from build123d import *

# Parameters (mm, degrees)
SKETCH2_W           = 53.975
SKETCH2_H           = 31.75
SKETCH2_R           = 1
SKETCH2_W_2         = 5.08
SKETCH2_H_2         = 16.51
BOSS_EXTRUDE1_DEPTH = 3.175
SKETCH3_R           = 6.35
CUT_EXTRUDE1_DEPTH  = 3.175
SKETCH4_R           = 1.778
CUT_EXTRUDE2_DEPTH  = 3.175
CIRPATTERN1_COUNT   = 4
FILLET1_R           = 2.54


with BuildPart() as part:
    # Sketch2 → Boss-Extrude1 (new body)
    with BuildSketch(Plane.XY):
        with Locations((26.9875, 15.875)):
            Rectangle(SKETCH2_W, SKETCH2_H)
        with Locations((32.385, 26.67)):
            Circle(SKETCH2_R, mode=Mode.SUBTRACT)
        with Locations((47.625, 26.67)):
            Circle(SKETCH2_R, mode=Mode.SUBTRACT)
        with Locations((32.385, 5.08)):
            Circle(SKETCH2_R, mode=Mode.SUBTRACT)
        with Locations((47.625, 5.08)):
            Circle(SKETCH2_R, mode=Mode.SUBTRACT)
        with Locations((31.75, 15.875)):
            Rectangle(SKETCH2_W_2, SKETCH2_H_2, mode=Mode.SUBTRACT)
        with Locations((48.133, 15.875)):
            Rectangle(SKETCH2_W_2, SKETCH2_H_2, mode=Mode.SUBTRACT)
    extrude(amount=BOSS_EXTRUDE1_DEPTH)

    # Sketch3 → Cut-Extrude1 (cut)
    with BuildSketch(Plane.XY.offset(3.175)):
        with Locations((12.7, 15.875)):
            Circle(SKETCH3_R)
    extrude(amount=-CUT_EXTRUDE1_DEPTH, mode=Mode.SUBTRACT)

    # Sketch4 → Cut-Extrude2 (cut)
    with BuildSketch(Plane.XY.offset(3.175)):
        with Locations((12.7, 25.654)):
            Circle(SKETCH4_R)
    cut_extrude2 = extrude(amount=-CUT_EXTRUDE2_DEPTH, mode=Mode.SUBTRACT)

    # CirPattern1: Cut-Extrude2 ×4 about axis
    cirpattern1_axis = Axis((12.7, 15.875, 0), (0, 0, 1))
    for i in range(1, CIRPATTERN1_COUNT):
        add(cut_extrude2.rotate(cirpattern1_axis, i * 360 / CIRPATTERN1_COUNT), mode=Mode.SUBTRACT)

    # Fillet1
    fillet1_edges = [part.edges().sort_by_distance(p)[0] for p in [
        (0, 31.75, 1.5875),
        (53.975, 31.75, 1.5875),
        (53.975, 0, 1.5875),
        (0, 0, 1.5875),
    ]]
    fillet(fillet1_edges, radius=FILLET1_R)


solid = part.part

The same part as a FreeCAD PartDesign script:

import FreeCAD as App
import Part
import Sketcher
Q = App.Units.Quantity


def edges_at(feature, points):
    """Names of the edges that pass closest to the given points."""
    edges = feature.Shape.Edges
    near = lambda p: min(range(len(edges)), key=lambda i: edges[i].distToShape(Part.Vertex(*p))[0])
    return sorted({f"Edge{near(p) + 1}" for p in points})

doc = App.newDocument("Part")
params = doc.addObject("Spreadsheet::Sheet", "Params")
for row, (alias, value) in enumerate([
    ("sketch1_width", "0.2 in"),
    ("sketch1_height", "1.25 in"),
    ("sketch1_height2", "0.65 in"),
    ("sketch1_width2", "2.125 in"),
    ("pad1_length", "0.125 in"),
    ("sketch2_diameter", "0.5 in"),
    ("pocket1_length", "0.125 in"),
    ("sketch3_diameter", "0.14 in"),
    ("pocket2_length", "0.125 in"),
    ("fillet_radius", "0.1 in"),
], start=1):
    params.set(f"A{row}", alias)
    params.set(f"B{row}", "=" + value)
    params.setAlias(f"B{row}", alias)

body = doc.addObject("PartDesign::Body", "Body")

sketch1 = body.newObject("Sketcher::SketchObject", "Sketch")
sketch1.AttachmentSupport = (doc.getObject("XY_Plane"), [""])
sketch1.MapMode = "FlatFace"
sketch1.addGeometry(Part.LineSegment(App.Vector(0, 31.8, 0), App.Vector(0, 0, 0)), False)
sketch1.addGeometry(Part.LineSegment(App.Vector(0, 0, 0), App.Vector(54, 0, 0)), False)
sketch1.addGeometry(Part.LineSegment(App.Vector(54, 0, 0), App.Vector(54, 31.8, 0)), False)
sketch1.addGeometry(Part.LineSegment(App.Vector(54, 31.8, 0), App.Vector(0, 31.8, 0)), False)
sketch1.addGeometry(Part.Circle(App.Vector(32.4, 5.1, 0), App.Vector(0, 0, 1), 1), False)
sketch1.addGeometry(Part.LineSegment(App.Vector(34.3, 7.6, 0), App.Vector(29.2, 7.6, 0)), False)
sketch1.addGeometry(Part.LineSegment(App.Vector(29.2, 7.6, 0), App.Vector(29.2, 24.1, 0)), False)
sketch1.addGeometry(Part.LineSegment(App.Vector(29.2, 24.1, 0), App.Vector(34.3, 24.1, 0)), False)
sketch1.addGeometry(Part.LineSegment(App.Vector(34.3, 24.1, 0), App.Vector(34.3, 7.6, 0)), False)
sketch1.addGeometry(Part.Circle(App.Vector(47.6, 5.1, 0), App.Vector(0, 0, 1), 1), False)
sketch1.addGeometry(Part.LineSegment(App.Vector(50.7, 7.6, 0), App.Vector(45.6, 7.6, 0)), False)
sketch1.addGeometry(Part.LineSegment(App.Vector(45.6, 7.6, 0), App.Vector(45.6, 24.1, 0)), False)
sketch1.addGeometry(Part.LineSegment(App.Vector(45.6, 24.1, 0), App.Vector(50.7, 24.1, 0)), False)
sketch1.addGeometry(Part.LineSegment(App.Vector(50.7, 24.1, 0), App.Vector(50.7, 7.6, 0)), False)
sketch1.addGeometry(Part.Circle(App.Vector(32.4, 26.7, 0), App.Vector(0, 0, 1), 1), False)
sketch1.addGeometry(Part.Circle(App.Vector(47.6, 26.7, 0), App.Vector(0, 0, 1), 1), False)
sketch1.addConstraint(Sketcher.Constraint("Coincident", 0, 2, 1, 1))
sketch1.addConstraint(Sketcher.Constraint("Coincident", 1, 2, 2, 1))
sketch1.addConstraint(Sketcher.Constraint("Coincident", 2, 2, 3, 1))
sketch1.addConstraint(Sketcher.Constraint("Coincident", 3, 2, 0, 1))
sketch1.addConstraint(Sketcher.Constraint("Coincident", 5, 2, 6, 1))
sketch1.addConstraint(Sketcher.Constraint("Coincident", 6, 2, 7, 1))
sketch1.addConstraint(Sketcher.Constraint("Coincident", 7, 2, 8, 1))
sketch1.addConstraint(Sketcher.Constraint("Coincident", 8, 2, 5, 1))
sketch1.addConstraint(Sketcher.Constraint("Coincident", 10, 2, 11, 1))
sketch1.addConstraint(Sketcher.Constraint("Coincident", 11, 2, 12, 1))
sketch1.addConstraint(Sketcher.Constraint("Coincident", 12, 2, 13, 1))
sketch1.addConstraint(Sketcher.Constraint("Coincident", 13, 2, 10, 1))
sketch1.addConstraint(Sketcher.Constraint("Vertical", 0))
sketch1.addConstraint(Sketcher.Constraint("Horizontal", 1))
sketch1.addConstraint(Sketcher.Constraint("Vertical", 2))
sketch1.addConstraint(Sketcher.Constraint("Horizontal", 3))
sketch1.addConstraint(Sketcher.Constraint("Horizontal", 5))
sketch1.addConstraint(Sketcher.Constraint("Vertical", 6))
sketch1.addConstraint(Sketcher.Constraint("Horizontal", 7))
sketch1.addConstraint(Sketcher.Constraint("Vertical", 8))
sketch1.addConstraint(Sketcher.Constraint("Horizontal", 10))
sketch1.addConstraint(Sketcher.Constraint("Vertical", 11))
sketch1.addConstraint(Sketcher.Constraint("Horizontal", 12))
sketch1.addConstraint(Sketcher.Constraint("Vertical", 13))
sketch1.addConstraint(Sketcher.Constraint("Coincident", 0, 2, -1, 1))
sketch1.addConstraint(Sketcher.Constraint("Equal", 4, 9))
sketch1.addConstraint(Sketcher.Constraint("Equal", 9, 14))
sketch1.addConstraint(Sketcher.Constraint("Equal", 14, 15))
sketch1.addConstraint(Sketcher.Constraint("Horizontal", 4, 3, 9, 3))
sketch1.addConstraint(Sketcher.Constraint("Horizontal", 14, 3, 15, 3))
sketch1.addConstraint(Sketcher.Constraint("Horizontal", 8, 2, 10, 2))
sketch1.addConstraint(Sketcher.Constraint("Horizontal", 7, 2, 11, 2))
sketch1.addConstraint(Sketcher.Constraint("Vertical", 4, 3, 14, 3))
sketch1.addConstraint(Sketcher.Constraint("Vertical", 9, 3, 15, 3))
sketch1.addConstraint(Sketcher.Constraint("Equal", 7, 10))
sketch1.addConstraint(Sketcher.Constraint("DistanceX", 5, 2, 5, 1, Q("0.2 in")))
sketch1.addConstraint(Sketcher.Constraint("DistanceY", 0, 2, 0, 1, Q("1.25 in")))
sketch1.addConstraint(Sketcher.Constraint("DistanceY", 6, 1, 6, 2, Q("0.65 in")))
sketch1.addConstraint(Sketcher.Constraint("DistanceY", -1, 1, 4, 3, Q("0.2 in")))
sketch1.addConstraint(Sketcher.Constraint("DistanceY", -1, 1, 5, 2, Q("0.3 in")))
sketch1.addConstraint(Sketcher.Constraint("DistanceX", 4, 3, 9, 3, Q("0.6 in")))
sketch1.addConstraint(Sketcher.Constraint("DistanceY", 15, 3, 2, 2, Q("0.2 in")))
sketch1.addConstraint(Sketcher.Constraint("Diameter", 4, Q("2 mm")))
sketch1.addConstraint(Sketcher.Constraint("DistanceX", 1, 1, 1, 2, Q("2.125 in")))
sketch1.addConstraint(Sketcher.Constraint("DistanceX", -1, 1, 5, 2, Q("1.15 in")))
sketch1.addConstraint(Sketcher.Constraint("DistanceX", 9, 3, 1, 2, Q("0.25 in")))
sketch1.addConstraint(Sketcher.Constraint("DistanceX", 10, 2, 9, 3, Q("0.08 in")))
sketch1.setExpression("Constraints[35]", "Params.sketch1_width")
sketch1.setExpression("Constraints[36]", "Params.sketch1_height")
sketch1.setExpression("Constraints[37]", "Params.sketch1_height2")
sketch1.setExpression("Constraints[43]", "Params.sketch1_width2")
pad1 = body.newObject("PartDesign::Pad", "Pad")
pad1.Profile = sketch1
pad1.setExpression("Length", "Params.pad1_length")

sketch2 = body.newObject("Sketcher::SketchObject", "Sketch001")
sketch2.AttachmentSupport = (doc.getObject("XY_Plane"), [""])
sketch2.MapMode = "FlatFace"
sketch2.AttachmentOffset = App.Placement(App.Vector(0, 0, 0.125 * 25.4), App.Rotation())
sketch2.addGeometry(Part.Circle(App.Vector(13, 16, 0), App.Vector(0, 0, 1), 6), False)
sketch2.addConstraint(Sketcher.Constraint("Diameter", 0, Q("0.5 in")))
sketch2.addConstraint(Sketcher.Constraint("DistanceX", -1, 1, 0, 3, Q("0.5 in")))
sketch2.addConstraint(Sketcher.Constraint("DistanceY", -1, 1, 0, 3, Q("0.625 in")))
sketch2.setExpression("Constraints[0]", "Params.sketch2_diameter")
pocket1 = body.newObject("PartDesign::Pocket", "Pocket")
pocket1.Profile = sketch2
pocket1.setExpression("Length", "Params.pocket1_length")

sketch3 = body.newObject("Sketcher::SketchObject", "Sketch002")
sketch3.AttachmentSupport = (doc.getObject("XY_Plane"), [""])
sketch3.MapMode = "FlatFace"
sketch3.AttachmentOffset = App.Placement(App.Vector(0, 0, 0.125 * 25.4), App.Rotation())
sketch3.addGeometry(Part.Circle(App.Vector(12.7, 25.7, 0), App.Vector(0, 0, 1), 1.8), False)
sketch3.addConstraint(Sketcher.Constraint("Diameter", 0, Q("0.14 in")))
sketch3.addConstraint(Sketcher.Constraint("DistanceX", -1, 1, 0, 3, Q("0.5 in")))
sketch3.addConstraint(Sketcher.Constraint("DistanceY", -1, 1, 0, 3, Q("1.01 in")))
sketch3.setExpression("Constraints[0]", "Params.sketch3_diameter")
pocket2 = body.newObject("PartDesign::Pocket", "Pocket001")
pocket2.Profile = sketch3
pocket2.setExpression("Length", "Params.pocket2_length")
doc.recompute()

datumline = body.newObject("PartDesign::Line", "DatumLine")
datumline.Placement = App.Placement(App.Vector(12.7, 15.875, 0), App.Rotation(App.Vector(0, 0, 1), App.Vector(0, 0, 1)))
polarpattern = body.newObject("PartDesign::PolarPattern", "PolarPattern")
polarpattern.Originals = [pocket2]
polarpattern.Axis = (datumline, [""])
polarpattern.Angle = 360
polarpattern.Occurrences = 4
body.Tip = polarpattern
doc.recompute()

fillet = body.newObject("PartDesign::Fillet", "Fillet")
fillet.Base = (polarpattern, edges_at(polarpattern, [
    (0, 31.75, 1.587),
    (53.975, 31.75, 1.587),
    (53.975, 0, 1.587),
    (0, 0, 1.587),
]))
fillet.setExpression("Radius", "Params.fillet_radius")

doc.recompute()
